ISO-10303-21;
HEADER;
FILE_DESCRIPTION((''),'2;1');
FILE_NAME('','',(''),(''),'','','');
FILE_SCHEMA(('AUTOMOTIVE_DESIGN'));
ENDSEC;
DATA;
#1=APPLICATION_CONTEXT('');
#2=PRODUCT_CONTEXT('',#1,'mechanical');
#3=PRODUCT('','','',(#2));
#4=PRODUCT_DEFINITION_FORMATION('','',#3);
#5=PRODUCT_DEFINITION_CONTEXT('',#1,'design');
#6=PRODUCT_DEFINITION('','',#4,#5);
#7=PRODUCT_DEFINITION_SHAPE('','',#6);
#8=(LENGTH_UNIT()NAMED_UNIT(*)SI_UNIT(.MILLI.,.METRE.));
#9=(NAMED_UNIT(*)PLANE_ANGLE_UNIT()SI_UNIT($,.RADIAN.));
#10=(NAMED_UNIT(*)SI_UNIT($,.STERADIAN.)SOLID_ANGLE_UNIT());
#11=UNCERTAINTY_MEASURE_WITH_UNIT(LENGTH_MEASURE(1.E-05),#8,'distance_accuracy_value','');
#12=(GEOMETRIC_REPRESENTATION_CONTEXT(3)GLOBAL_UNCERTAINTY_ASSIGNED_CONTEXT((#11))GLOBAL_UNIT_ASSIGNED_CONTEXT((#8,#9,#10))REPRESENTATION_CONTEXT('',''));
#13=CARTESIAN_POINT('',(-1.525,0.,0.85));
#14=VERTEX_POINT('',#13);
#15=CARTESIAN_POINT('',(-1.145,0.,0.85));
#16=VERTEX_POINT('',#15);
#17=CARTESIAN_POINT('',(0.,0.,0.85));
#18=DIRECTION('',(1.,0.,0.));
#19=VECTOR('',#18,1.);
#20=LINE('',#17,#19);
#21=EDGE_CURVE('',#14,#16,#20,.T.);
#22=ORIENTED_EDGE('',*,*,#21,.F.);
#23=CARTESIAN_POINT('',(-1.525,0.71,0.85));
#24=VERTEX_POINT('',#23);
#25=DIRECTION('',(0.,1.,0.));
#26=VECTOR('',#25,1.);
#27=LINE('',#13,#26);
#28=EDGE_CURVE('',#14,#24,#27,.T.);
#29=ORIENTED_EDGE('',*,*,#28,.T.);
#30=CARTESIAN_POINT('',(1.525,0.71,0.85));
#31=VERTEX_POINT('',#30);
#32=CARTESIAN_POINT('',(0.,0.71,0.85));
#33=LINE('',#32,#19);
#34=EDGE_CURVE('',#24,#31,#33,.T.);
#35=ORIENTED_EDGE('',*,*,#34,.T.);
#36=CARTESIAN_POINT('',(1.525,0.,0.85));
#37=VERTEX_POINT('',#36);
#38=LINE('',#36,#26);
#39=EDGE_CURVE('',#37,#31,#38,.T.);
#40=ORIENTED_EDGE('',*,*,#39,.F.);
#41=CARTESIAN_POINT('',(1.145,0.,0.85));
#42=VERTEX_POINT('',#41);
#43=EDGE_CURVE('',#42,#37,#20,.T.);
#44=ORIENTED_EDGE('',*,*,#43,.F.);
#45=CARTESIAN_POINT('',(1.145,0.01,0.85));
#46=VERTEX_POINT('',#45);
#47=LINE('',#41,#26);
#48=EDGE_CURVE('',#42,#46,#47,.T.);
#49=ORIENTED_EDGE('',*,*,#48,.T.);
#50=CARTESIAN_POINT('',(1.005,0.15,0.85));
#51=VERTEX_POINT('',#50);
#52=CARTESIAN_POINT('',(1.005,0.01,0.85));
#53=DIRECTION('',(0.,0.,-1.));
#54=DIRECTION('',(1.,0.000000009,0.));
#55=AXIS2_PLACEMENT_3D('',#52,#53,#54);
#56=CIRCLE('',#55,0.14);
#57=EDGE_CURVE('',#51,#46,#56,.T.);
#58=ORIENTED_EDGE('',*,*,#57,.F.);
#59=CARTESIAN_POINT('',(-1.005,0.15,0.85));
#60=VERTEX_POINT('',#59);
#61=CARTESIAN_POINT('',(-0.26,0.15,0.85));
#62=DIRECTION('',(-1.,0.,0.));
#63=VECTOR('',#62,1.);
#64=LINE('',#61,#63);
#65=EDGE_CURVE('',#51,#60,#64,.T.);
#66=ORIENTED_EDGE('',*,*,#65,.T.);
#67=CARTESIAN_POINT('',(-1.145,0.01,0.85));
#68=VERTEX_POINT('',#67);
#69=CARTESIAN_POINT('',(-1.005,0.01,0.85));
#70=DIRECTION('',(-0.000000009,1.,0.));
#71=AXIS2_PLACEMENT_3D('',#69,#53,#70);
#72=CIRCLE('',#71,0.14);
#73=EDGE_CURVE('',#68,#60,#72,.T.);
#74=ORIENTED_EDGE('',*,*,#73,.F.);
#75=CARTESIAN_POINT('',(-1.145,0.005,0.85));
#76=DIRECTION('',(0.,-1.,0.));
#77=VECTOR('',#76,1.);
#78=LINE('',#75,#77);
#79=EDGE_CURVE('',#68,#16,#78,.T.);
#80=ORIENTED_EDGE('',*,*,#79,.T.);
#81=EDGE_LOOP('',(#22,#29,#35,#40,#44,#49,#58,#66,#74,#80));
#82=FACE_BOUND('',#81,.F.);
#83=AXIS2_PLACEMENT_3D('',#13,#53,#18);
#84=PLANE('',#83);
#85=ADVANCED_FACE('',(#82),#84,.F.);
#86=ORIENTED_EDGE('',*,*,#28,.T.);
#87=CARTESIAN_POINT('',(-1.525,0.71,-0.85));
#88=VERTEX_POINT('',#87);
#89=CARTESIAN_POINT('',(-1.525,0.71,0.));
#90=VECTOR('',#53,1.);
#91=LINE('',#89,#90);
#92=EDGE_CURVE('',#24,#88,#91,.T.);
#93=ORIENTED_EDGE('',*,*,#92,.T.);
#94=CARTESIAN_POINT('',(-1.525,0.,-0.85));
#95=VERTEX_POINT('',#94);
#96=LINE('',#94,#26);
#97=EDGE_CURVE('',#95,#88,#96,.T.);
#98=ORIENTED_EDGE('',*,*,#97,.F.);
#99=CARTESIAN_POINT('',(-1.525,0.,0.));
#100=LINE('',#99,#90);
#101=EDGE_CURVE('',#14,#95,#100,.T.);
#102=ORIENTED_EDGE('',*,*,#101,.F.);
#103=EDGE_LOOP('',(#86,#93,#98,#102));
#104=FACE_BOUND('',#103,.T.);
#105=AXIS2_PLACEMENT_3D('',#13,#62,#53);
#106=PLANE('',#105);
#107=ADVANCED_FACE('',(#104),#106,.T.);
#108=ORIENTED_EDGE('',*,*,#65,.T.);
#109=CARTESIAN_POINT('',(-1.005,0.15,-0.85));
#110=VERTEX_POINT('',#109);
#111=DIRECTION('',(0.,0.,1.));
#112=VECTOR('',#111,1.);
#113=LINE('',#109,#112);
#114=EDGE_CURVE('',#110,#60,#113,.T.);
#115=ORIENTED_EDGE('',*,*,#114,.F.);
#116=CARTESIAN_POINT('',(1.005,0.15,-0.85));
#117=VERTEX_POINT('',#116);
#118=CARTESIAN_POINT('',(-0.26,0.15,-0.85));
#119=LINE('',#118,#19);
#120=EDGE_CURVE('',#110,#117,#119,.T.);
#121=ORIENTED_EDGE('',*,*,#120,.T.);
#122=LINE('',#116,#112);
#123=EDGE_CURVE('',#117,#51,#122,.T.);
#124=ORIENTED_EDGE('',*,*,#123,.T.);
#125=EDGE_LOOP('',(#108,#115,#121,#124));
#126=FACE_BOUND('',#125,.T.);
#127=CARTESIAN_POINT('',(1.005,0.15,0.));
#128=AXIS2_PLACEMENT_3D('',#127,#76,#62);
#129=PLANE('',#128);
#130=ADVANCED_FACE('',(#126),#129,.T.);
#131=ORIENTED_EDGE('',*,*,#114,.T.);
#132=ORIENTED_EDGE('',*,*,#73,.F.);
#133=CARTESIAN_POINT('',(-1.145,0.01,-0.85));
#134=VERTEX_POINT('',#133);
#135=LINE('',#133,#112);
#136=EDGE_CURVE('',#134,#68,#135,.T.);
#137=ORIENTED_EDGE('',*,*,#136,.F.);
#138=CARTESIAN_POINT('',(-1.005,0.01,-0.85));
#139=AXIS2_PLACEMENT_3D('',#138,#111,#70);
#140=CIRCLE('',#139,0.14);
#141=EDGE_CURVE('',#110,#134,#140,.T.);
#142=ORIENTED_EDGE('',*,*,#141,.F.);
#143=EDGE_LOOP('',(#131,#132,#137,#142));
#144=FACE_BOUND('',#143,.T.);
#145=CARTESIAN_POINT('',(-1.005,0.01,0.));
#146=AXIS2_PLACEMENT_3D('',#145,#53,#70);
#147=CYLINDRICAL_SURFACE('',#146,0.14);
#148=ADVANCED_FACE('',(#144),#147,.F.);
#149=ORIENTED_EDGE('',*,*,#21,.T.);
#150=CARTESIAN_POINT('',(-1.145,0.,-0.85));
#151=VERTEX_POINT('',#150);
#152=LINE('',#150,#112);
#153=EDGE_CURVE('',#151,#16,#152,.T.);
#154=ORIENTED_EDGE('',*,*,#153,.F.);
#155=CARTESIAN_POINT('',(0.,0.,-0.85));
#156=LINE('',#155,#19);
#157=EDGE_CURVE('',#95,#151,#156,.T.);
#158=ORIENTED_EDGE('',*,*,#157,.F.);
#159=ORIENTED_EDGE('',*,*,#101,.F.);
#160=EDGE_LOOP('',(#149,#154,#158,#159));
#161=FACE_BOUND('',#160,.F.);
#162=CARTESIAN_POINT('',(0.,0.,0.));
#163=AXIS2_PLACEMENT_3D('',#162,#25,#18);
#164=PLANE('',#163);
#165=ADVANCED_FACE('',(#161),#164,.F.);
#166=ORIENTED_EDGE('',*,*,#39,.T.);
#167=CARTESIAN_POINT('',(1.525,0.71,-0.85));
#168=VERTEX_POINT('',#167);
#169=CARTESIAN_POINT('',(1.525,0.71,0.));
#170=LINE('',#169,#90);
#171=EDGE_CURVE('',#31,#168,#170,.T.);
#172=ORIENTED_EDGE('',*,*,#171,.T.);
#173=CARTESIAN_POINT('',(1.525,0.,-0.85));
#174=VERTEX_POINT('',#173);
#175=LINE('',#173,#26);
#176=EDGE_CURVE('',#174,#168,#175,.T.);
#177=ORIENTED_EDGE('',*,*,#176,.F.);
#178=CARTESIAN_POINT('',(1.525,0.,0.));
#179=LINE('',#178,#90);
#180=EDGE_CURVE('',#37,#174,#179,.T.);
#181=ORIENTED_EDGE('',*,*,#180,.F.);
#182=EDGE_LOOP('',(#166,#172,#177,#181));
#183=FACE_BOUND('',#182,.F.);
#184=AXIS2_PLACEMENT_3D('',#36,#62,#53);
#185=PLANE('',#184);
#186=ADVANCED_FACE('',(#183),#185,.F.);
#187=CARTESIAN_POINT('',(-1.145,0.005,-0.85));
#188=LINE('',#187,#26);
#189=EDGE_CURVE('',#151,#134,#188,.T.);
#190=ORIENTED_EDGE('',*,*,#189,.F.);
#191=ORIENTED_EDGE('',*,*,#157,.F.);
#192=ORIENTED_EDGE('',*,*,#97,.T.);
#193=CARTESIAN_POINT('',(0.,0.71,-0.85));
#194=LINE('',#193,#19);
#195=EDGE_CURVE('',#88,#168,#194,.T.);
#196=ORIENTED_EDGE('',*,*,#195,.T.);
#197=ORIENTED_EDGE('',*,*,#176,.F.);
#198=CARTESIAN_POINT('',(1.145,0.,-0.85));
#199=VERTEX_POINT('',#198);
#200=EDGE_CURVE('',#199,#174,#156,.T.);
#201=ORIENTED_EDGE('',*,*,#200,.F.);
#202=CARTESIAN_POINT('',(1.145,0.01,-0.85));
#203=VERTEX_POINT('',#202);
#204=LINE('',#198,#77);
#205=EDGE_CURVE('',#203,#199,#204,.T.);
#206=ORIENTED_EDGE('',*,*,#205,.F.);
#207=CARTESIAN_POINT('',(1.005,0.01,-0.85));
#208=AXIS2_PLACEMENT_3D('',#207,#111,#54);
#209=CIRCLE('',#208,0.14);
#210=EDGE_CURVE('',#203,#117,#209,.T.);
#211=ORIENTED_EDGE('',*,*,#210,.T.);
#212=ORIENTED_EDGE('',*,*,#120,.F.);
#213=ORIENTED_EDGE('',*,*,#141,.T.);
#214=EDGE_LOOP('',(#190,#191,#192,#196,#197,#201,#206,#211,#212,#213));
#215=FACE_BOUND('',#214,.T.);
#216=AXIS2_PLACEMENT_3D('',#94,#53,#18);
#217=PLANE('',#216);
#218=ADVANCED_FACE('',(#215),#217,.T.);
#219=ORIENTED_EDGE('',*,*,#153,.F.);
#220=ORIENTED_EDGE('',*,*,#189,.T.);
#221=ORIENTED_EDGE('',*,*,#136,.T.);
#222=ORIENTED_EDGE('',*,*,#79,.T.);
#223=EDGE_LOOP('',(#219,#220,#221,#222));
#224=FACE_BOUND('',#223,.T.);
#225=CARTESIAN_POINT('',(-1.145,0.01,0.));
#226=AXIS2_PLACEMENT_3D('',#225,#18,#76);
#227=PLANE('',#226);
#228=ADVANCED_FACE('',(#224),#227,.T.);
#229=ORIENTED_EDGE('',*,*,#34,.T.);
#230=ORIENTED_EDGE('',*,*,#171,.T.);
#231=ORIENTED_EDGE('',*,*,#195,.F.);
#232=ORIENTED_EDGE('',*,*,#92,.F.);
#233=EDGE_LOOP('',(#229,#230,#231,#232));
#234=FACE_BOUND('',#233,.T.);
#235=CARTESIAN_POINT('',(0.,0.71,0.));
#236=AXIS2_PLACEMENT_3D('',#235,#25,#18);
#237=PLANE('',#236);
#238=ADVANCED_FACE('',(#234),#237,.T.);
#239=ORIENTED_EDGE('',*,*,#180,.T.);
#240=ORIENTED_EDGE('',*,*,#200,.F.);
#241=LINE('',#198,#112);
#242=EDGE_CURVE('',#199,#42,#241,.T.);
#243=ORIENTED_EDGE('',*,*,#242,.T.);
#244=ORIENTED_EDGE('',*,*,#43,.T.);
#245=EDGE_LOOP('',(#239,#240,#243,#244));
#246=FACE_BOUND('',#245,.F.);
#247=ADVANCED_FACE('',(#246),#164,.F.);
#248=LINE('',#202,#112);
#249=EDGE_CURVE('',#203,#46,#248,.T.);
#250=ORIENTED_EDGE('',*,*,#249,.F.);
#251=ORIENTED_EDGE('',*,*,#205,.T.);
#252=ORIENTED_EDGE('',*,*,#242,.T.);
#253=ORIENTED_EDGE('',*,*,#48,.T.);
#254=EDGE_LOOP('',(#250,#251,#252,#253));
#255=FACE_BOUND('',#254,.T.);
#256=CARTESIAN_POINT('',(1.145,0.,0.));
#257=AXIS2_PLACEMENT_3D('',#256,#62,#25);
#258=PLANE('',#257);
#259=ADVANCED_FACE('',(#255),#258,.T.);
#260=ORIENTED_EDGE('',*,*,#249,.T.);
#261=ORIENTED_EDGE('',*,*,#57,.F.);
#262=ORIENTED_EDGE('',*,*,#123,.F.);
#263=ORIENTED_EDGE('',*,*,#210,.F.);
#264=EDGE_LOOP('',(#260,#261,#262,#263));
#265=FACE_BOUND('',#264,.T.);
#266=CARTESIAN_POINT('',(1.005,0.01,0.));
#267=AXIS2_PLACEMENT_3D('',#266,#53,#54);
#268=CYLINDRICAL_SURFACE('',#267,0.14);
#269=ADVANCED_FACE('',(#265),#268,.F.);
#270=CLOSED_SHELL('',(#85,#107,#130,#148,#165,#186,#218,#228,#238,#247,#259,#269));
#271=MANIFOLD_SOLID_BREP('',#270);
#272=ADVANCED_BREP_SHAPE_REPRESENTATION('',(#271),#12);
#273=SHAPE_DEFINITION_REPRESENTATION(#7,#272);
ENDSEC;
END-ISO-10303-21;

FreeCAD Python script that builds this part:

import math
import FreeCAD as App
import Part
import Sketcher

V = App.Vector
Q = App.Units.Quantity

doc = App.newDocument("Part")
body = doc.addObject("PartDesign::Body", "Body")

# Sketch on XZ plane
sketch1 = body.newObject("Sketcher::SketchObject", "Sketch")
sketch1.AttachmentSupport = (doc.getObject("XZ_Plane"), [""])
sketch1.MapMode = "FlatFace"
sketch1.addGeometry([
    Part.LineSegment(V(-1.525, -0.85, 0), V(-1.525, 0.85, 0)),
    Part.LineSegment(V(-1.525, 0.85, 0), V(1.525, 0.85, 0)),
    Part.LineSegment(V(1.525, 0.85, 0), V(1.525, -0.85, 0)),
    Part.LineSegment(V(1.525, -0.85, 0), V(-1.525, -0.85, 0)),
], False)
sketch1.addConstraint([
    Sketcher.Constraint("Coincident", 0, 2, 1, 1),
    Sketcher.Constraint("Coincident", 1, 2, 2, 1),
    Sketcher.Constraint("Coincident", 2, 2, 3, 1),
    Sketcher.Constraint("Coincident", 3, 2, 0, 1),
    Sketcher.Constraint("Vertical", 0),
    Sketcher.Constraint("Horizontal", 1),
    Sketcher.Constraint("Vertical", 2),
    Sketcher.Constraint("Horizontal", 3),
    Sketcher.Constraint("Symmetric", 0, 2, 2, 2, -1, 1),
    Sketcher.Constraint("DistanceY", 0, 1, 0, 2, Q("1.7 mm")),
    Sketcher.Constraint("DistanceX", 1, 1, 1, 2, Q("3.05 mm")),
])
pad1 = body.newObject("PartDesign::Pad", "Pad")
pad1.Profile = sketch1
pad1.Length = 0.71
pad1.Reversed = True

# Sketch on XY plane
sketch2 = body.newObject("Sketcher::SketchObject", "Sketch001")
sketch2.AttachmentSupport = (doc.getObject("XY_Plane"), [""])
sketch2.MapMode = "FlatFace"
sketch2.addGeometry([
    Part.LineSegment(V(-1.145, 0, 0), V(1.145, 0, 0)),  # 0
    Part.LineSegment(V(1.145, 0, 0), V(1.145, 0.01, 0)),  # 1
    Part.ArcOfCircle(Part.Circle(V(1.005, 0.01, 0), V(0, 0, 1), 0.14), math.radians(0), math.radians(90)),  # 2
    Part.LineSegment(V(1.005, 0.15, 0), V(-1.005, 0.15, 0)),  # 3
    Part.ArcOfCircle(Part.Circle(V(-1.005, 0.01, 0), V(0, 0, 1), 0.14), math.radians(90), math.radians(180)),  # 4
    Part.LineSegment(V(-1.145, 0.01, 0), V(-1.145, 0, 0)),  # 5
], False)
sketch2.addConstraint([
    Sketcher.Constraint("Coincident", 0, 2, 1, 1),
    Sketcher.Constraint("Tangent", 1, 2, 2, 1),
    Sketcher.Constraint("Tangent", 2, 2, 3, 1),
    Sketcher.Constraint("Tangent", 3, 2, 4, 1),
    Sketcher.Constraint("Tangent", 4, 2, 5, 1),
    Sketcher.Constraint("Coincident", 5, 2, 0, 1),
    Sketcher.Constraint("Horizontal", 0),
    Sketcher.Constraint("Vertical", 1),
    Sketcher.Constraint("Horizontal", 3),
    Sketcher.Constraint("Vertical", 5),
    Sketcher.Constraint("Equal", 2, 4),
    Sketcher.Constraint("Symmetric", 0, 2, 5, 2, -1, 1),
    Sketcher.Constraint("Radius", 2, Q("0.14 mm")),
    Sketcher.Constraint("DistanceX", 0, 1, 0, 2, Q("2.29 mm")),
    Sketcher.Constraint("DistanceY", 1, 1, 1, 2, Q("0.01 mm")),
])
pocket1 = body.newObject("PartDesign::Pocket", "Pocket")
pocket1.Profile = sketch2
pocket1.Type = "ThroughAll"
pocket1.Midplane = True

doc.recompute()
